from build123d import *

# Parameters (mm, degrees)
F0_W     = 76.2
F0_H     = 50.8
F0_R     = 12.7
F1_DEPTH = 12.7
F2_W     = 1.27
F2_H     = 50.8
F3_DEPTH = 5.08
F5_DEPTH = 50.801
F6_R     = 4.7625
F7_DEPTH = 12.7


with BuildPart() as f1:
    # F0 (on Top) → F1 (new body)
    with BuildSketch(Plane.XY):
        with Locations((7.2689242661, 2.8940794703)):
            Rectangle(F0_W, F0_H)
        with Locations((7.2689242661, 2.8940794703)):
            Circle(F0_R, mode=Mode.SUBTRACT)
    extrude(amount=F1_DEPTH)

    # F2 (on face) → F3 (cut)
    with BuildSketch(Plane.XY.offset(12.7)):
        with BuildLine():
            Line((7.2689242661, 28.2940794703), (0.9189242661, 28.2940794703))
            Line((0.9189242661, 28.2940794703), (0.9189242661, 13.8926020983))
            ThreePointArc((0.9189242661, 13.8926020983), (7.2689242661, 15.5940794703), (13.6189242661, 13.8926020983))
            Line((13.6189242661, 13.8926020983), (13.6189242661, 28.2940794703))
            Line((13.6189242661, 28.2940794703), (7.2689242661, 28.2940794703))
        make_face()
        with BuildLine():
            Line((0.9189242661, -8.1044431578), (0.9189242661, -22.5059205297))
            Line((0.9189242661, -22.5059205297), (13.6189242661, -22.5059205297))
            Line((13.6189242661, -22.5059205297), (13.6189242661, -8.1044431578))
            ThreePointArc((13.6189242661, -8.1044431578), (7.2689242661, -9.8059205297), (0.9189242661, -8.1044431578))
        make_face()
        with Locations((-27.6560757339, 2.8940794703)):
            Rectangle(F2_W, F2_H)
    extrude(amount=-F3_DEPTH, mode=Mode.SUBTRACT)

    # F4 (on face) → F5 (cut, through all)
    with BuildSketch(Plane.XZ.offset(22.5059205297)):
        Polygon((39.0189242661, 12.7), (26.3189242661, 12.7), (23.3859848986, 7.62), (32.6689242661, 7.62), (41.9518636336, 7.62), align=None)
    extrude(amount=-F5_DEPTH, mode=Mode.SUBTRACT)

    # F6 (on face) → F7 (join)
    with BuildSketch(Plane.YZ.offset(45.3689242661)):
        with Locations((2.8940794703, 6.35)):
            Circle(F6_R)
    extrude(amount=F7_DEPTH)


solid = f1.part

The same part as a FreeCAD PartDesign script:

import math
import FreeCAD as App
import Part
import Sketcher
Q = App.Units.Quantity

doc = App.newDocument("Part")
body = doc.addObject("PartDesign::Body", "Body")

# Sketch on XY plane
sketch1 = body.newObject("Sketcher::SketchObject", "Sketch")
sketch1.AttachmentSupport = (doc.getObject("XY_Plane"), [""])
sketch1.MapMode = "FlatFace"
sketch1.addGeometry(Part.LineSegment(App.Vector(-31, 28, 0), App.Vector(-31, -23, 0)), False)
sketch1.addGeometry(Part.LineSegment(App.Vector(-31, -23, 0), App.Vector(45, -23, 0)), False)
sketch1.addGeometry(Part.LineSegment(App.Vector(45, -23, 0), App.Vector(45, 28, 0)), False)
sketch1.addGeometry(Part.LineSegment(App.Vector(45, 28, 0), App.Vector(-31, 28, 0)), False)
sketch1.addGeometry(Part.Circle(App.Vector(7, 3, 0), App.Vector(0, 0, 1), 13), False)
sketch1.addConstraint(Sketcher.Constraint("Coincident", 0, 2, 1, 1))
sketch1.addConstraint(Sketcher.Constraint("Coincident", 1, 2, 2, 1))
sketch1.addConstraint(Sketcher.Constraint("Coincident", 2, 2, 3, 1))
sketch1.addConstraint(Sketcher.Constraint("Coincident", 3, 2, 0, 1))
sketch1.addConstraint(Sketcher.Constraint("Vertical", 0))
sketch1.addConstraint(Sketcher.Constraint("Horizontal", 1))
sketch1.addConstraint(Sketcher.Constraint("Vertical", 2))
sketch1.addConstraint(Sketcher.Constraint("Horizontal", 3))
sketch1.addConstraint(Sketcher.Constraint("Diameter", 4, Q("1 in")))
sketch1.addConstraint(Sketcher.Constraint("DistanceX", 1, 1, 1, 2, Q("3 in")))
sketch1.addConstraint(Sketcher.Constraint("DistanceY", 0, 2, 0, 1, Q("2 in")))
sketch1.addConstraint(Sketcher.Constraint("DistanceY", 0, 2, 4, 3, Q("1 in")))
sketch1.addConstraint(Sketcher.Constraint("DistanceX", 0, 2, 4, 3, Q("1.5 in")))
sketch1.addConstraint(Sketcher.Constraint("DistanceY", -1, 1, 4, 3, Q("2.894079 mm")))
sketch1.addConstraint(Sketcher.Constraint("DistanceX", -1, 1, 4, 3, Q("7.268924 mm")))
pad1 = body.newObject("PartDesign::Pad", "Pad")
pad1.Profile = sketch1
pad1.Length = Q("0.5 in")

# Sketch on XY plane
sketch2 = body.newObject("Sketcher::SketchObject", "Sketch001")
sketch2.AttachmentSupport = (doc.getObject("XY_Plane"), [""])
sketch2.MapMode = "FlatFace"
sketch2.AttachmentOffset = App.Placement(App.Vector(0, 0, 0.5 * 25.4), App.Rotation())
sketch2.addGeometry(Part.LineSegment(App.Vector(0.9, 28.3, 0), App.Vector(0.9, 13.9, 0)), False)
sketch2.addGeometry(Part.ArcOfCircle(Part.Circle(App.Vector(7.3, 2.9, 0), App.Vector(0, 0, 1), 12.7), math.radians(60), math.radians(120)), False)
sketch2.addGeometry(Part.LineSegment(App.Vector(13.6, 13.9, 0), App.Vector(13.6, 28.3, 0)), False)
sketch2.addGeometry(Part.LineSegment(App.Vector(13.6, 28.3, 0), App.Vector(0.9, 28.3, 0)), False)
sketch2.addGeometry(Part.LineSegment(App.Vector(0.9, -8.1, 0), App.Vector(0.9, -22.5, 0)), False)
sketch2.addGeometry(Part.LineSegment(App.Vector(0.9, -22.5, 0), App.Vector(13.6, -22.5, 0)), False)
sketch2.addGeometry(Part.LineSegment(App.Vector(13.6, -22.5, 0), App.Vector(13.6, -8.1, 0)), False)
sketch2.addGeometry(Part.ArcOfCircle(Part.Circle(App.Vector(7.3, 2.9, 0), App.Vector(0, 0, 1), 12.7), math.radians(-120), math.radians(-60)), False)
sketch2.addGeometry(Part.LineSegment(App.Vector(-28.3, 28.3, 0), App.Vector(-28.3, -22.5, 0)), False)
sketch2.addGeometry(Part.LineSegment(App.Vector(-28.3, -22.5, 0), App.Vector(-27, -22.5, 0)), False)
sketch2.addGeometry(Part.LineSegment(App.Vector(-27, -22.5, 0), App.Vector(-27, 28.3, 0)), False)
sketch2.addGeometry(Part.LineSegment(App.Vector(-27, 28.3, 0), App.Vector(-28.3, 28.3, 0)), False)
sketch2.addConstraint(Sketcher.Constraint("Coincident", 0, 2, 1, 2))
sketch2.addConstraint(Sketcher.Constraint("Coincident", 1, 1, 2, 1))
sketch2.addConstraint(Sketcher.Constraint("Coincident", 2, 2, 3, 1))
sketch2.addConstraint(Sketcher.Constraint("Coincident", 3, 2, 0, 1))
sketch2.addConstraint(Sketcher.Constraint("Coincident", 4, 2, 5, 1))
sketch2.addConstraint(Sketcher.Constraint("Coincident", 5, 2, 6, 1))
sketch2.addConstraint(Sketcher.Constraint("Coincident", 6, 2, 7, 2))
sketch2.addConstraint(Sketcher.Constraint("Coincident", 7, 1, 4, 1))
sketch2.addConstraint(Sketcher.Constraint("Coincident", 8, 2, 9, 1))
sketch2.addConstraint(Sketcher.Constraint("Coincident", 9, 2, 10, 1))
sketch2.addConstraint(Sketcher.Constraint("Coincident", 10, 2, 11, 1))
sketch2.addConstraint(Sketcher.Constraint("Coincident", 11, 2, 8, 1))
sketch2.addConstraint(Sketcher.Constraint("Vertical", 0))
sketch2.addConstraint(Sketcher.Constraint("Vertical", 2))
sketch2.addConstraint(Sketcher.Constraint("Horizontal", 3))
sketch2.addConstraint(Sketcher.Constraint("Vertical", 4))
sketch2.addConstraint(Sketcher.Constraint("Horizontal", 5))
sketch2.addConstraint(Sketcher.Constraint("Vertical", 6))
sketch2.addConstraint(Sketcher.Constraint("Vertical", 8))
sketch2.addConstraint(Sketcher.Constraint("Horizontal", 9))
sketch2.addConstraint(Sketcher.Constraint("Vertical", 10))
sketch2.addConstraint(Sketcher.Constraint("Horizontal", 11))
sketch2.addConstraint(Sketcher.Constraint("Coincident", 7, 3, 1, 3))
sketch2.addConstraint(Sketcher.Constraint("Equal", 1, 7))
sketch2.addConstraint(Sketcher.Constraint("Horizontal", 0, 2, 1, 1))
sketch2.addConstraint(Sketcher.Constraint("Horizontal", 6, 2, 7, 1))
sketch2.addConstraint(Sketcher.Constraint("Horizontal", 5, 2, 8, 2))
sketch2.addConstraint(Sketcher.Constraint("Horizontal", 3, 2, 10, 2))
sketch2.addConstraint(Sketcher.Constraint("Vertical", 3, 2, 4, 2))
sketch2.addConstraint(Sketcher.Constraint("Equal", 2, 4))
sketch2.addConstraint(Sketcher.Constraint("Radius", 1, Q("0.5 in")))
sketch2.addConstraint(Sketcher.Constraint("DistanceY", 8, 2, 8, 1, Q("2 in")))
sketch2.addConstraint(Sketcher.Constraint("DistanceX", 3, 2, 3, 1, Q("0.5 in")))
sketch2.addConstraint(Sketcher.Constraint("DistanceX", 9, 1, 9, 2, Q("0.05 in")))
sketch2.addConstraint(Sketcher.Constraint("DistanceX", 8, 2, 1, 3, Q("1.4 in")))
sketch2.addConstraint(Sketcher.Constraint("DistanceY", -1, 1, 1, 3, Q("2.894079 mm")))
sketch2.addConstraint(Sketcher.Constraint("DistanceX", -1, 1, 1, 3, Q("7.268924 mm")))
pocket1 = body.newObject("PartDesign::Pocket", "Pocket")
pocket1.Profile = sketch2
pocket1.Length = Q("0.2 in")

# Sketch on XZ plane
sketch3 = body.newObject("Sketcher::SketchObject", "Sketch002")
sketch3.AttachmentSupport = (doc.getObject("XZ_Plane"), [""])
sketch3.MapMode = "FlatFace"
sketch3.AttachmentOffset = App.Placement(App.Vector(0, 0, 22.505921), App.Rotation())
sketch3.addGeometry(Part.LineSegment(App.Vector(39, 13, 0), App.Vector(26, 13, 0)), False)
sketch3.addGeometry(Part.LineSegment(App.Vector(26, 13, 0), App.Vector(23, 8, 0)), False)
sketch3.addGeometry(Part.LineSegment(App.Vector(23, 8, 0), App.Vector(42, 8, 0)), False)
sketch3.addGeometry(Part.LineSegment(App.Vector(42, 8, 0), App.Vector(39, 13, 0)), False)
sketch3.addConstraint(Sketcher.Constraint("Coincident", 0, 2, 1, 1))
sketch3.addConstraint(Sketcher.Constraint("Coincident", 1, 2, 2, 1))
sketch3.addConstraint(Sketcher.Constraint("Coincident", 2, 2, 3, 1))
sketch3.addConstraint(Sketcher.Constraint("Coincident", 3, 2, 0, 1))
sketch3.addConstraint(Sketcher.Constraint("Horizontal", 0))
sketch3.addConstraint(Sketcher.Constraint("Horizontal", 2))
sketch3.addConstraint(Sketcher.Constraint("Equal", 1, 3))
sketch3.addConstraint(Sketcher.Constraint("DistanceX", 0, 2, 0, 1, Q("0.5 in")))
sketch3.addConstraint(Sketcher.Constraint("Angle", 1, Q("-120 deg")))
sketch3.addConstraint(Sketcher.Constraint("DistanceY", -1, 1, 0, 2, Q("0.5 in")))
sketch3.addConstraint(Sketcher.Constraint("DistanceY", -1, 1, 1, 2, Q("0.3 in")))
sketch3.addConstraint(Sketcher.Constraint("DistanceX", -1, 1, 0, 2, Q("26.318924 mm")))
pocket2 = body.newObject("PartDesign::Pocket", "Pocket001")
pocket2.Profile = sketch3
pocket2.Type = "ThroughAll"

# Sketch on YZ plane
sketch4 = body.newObject("Sketcher::SketchObject", "Sketch003")
sketch4.AttachmentSupport = (doc.getObject("YZ_Plane"), [""])
sketch4.MapMode = "FlatFace"
sketch4.AttachmentOffset = App.Placement(App.Vector(0, 0, 45.368924), App.Rotation())
sketch4.addGeometry(Part.Circle(App.Vector(2.9, 6.3, 0), App.Vector(0, 0, 1), 4.8), False)
sketch4.addConstraint(Sketcher.Constraint("Diameter", 0, Q("0.375 in")))
sketch4.addConstraint(Sketcher.Constraint("DistanceY", -1, 1, 0, 3, Q("0.25 in")))
sketch4.addConstraint(Sketcher.Constraint("DistanceX", -1, 1, 0, 3, Q("2.894079 mm")))
pad2 = body.newObject("PartDesign::Pad", "Pad001")
pad2.Profile = sketch4
pad2.Length = Q("0.5 in")

doc.recompute()
